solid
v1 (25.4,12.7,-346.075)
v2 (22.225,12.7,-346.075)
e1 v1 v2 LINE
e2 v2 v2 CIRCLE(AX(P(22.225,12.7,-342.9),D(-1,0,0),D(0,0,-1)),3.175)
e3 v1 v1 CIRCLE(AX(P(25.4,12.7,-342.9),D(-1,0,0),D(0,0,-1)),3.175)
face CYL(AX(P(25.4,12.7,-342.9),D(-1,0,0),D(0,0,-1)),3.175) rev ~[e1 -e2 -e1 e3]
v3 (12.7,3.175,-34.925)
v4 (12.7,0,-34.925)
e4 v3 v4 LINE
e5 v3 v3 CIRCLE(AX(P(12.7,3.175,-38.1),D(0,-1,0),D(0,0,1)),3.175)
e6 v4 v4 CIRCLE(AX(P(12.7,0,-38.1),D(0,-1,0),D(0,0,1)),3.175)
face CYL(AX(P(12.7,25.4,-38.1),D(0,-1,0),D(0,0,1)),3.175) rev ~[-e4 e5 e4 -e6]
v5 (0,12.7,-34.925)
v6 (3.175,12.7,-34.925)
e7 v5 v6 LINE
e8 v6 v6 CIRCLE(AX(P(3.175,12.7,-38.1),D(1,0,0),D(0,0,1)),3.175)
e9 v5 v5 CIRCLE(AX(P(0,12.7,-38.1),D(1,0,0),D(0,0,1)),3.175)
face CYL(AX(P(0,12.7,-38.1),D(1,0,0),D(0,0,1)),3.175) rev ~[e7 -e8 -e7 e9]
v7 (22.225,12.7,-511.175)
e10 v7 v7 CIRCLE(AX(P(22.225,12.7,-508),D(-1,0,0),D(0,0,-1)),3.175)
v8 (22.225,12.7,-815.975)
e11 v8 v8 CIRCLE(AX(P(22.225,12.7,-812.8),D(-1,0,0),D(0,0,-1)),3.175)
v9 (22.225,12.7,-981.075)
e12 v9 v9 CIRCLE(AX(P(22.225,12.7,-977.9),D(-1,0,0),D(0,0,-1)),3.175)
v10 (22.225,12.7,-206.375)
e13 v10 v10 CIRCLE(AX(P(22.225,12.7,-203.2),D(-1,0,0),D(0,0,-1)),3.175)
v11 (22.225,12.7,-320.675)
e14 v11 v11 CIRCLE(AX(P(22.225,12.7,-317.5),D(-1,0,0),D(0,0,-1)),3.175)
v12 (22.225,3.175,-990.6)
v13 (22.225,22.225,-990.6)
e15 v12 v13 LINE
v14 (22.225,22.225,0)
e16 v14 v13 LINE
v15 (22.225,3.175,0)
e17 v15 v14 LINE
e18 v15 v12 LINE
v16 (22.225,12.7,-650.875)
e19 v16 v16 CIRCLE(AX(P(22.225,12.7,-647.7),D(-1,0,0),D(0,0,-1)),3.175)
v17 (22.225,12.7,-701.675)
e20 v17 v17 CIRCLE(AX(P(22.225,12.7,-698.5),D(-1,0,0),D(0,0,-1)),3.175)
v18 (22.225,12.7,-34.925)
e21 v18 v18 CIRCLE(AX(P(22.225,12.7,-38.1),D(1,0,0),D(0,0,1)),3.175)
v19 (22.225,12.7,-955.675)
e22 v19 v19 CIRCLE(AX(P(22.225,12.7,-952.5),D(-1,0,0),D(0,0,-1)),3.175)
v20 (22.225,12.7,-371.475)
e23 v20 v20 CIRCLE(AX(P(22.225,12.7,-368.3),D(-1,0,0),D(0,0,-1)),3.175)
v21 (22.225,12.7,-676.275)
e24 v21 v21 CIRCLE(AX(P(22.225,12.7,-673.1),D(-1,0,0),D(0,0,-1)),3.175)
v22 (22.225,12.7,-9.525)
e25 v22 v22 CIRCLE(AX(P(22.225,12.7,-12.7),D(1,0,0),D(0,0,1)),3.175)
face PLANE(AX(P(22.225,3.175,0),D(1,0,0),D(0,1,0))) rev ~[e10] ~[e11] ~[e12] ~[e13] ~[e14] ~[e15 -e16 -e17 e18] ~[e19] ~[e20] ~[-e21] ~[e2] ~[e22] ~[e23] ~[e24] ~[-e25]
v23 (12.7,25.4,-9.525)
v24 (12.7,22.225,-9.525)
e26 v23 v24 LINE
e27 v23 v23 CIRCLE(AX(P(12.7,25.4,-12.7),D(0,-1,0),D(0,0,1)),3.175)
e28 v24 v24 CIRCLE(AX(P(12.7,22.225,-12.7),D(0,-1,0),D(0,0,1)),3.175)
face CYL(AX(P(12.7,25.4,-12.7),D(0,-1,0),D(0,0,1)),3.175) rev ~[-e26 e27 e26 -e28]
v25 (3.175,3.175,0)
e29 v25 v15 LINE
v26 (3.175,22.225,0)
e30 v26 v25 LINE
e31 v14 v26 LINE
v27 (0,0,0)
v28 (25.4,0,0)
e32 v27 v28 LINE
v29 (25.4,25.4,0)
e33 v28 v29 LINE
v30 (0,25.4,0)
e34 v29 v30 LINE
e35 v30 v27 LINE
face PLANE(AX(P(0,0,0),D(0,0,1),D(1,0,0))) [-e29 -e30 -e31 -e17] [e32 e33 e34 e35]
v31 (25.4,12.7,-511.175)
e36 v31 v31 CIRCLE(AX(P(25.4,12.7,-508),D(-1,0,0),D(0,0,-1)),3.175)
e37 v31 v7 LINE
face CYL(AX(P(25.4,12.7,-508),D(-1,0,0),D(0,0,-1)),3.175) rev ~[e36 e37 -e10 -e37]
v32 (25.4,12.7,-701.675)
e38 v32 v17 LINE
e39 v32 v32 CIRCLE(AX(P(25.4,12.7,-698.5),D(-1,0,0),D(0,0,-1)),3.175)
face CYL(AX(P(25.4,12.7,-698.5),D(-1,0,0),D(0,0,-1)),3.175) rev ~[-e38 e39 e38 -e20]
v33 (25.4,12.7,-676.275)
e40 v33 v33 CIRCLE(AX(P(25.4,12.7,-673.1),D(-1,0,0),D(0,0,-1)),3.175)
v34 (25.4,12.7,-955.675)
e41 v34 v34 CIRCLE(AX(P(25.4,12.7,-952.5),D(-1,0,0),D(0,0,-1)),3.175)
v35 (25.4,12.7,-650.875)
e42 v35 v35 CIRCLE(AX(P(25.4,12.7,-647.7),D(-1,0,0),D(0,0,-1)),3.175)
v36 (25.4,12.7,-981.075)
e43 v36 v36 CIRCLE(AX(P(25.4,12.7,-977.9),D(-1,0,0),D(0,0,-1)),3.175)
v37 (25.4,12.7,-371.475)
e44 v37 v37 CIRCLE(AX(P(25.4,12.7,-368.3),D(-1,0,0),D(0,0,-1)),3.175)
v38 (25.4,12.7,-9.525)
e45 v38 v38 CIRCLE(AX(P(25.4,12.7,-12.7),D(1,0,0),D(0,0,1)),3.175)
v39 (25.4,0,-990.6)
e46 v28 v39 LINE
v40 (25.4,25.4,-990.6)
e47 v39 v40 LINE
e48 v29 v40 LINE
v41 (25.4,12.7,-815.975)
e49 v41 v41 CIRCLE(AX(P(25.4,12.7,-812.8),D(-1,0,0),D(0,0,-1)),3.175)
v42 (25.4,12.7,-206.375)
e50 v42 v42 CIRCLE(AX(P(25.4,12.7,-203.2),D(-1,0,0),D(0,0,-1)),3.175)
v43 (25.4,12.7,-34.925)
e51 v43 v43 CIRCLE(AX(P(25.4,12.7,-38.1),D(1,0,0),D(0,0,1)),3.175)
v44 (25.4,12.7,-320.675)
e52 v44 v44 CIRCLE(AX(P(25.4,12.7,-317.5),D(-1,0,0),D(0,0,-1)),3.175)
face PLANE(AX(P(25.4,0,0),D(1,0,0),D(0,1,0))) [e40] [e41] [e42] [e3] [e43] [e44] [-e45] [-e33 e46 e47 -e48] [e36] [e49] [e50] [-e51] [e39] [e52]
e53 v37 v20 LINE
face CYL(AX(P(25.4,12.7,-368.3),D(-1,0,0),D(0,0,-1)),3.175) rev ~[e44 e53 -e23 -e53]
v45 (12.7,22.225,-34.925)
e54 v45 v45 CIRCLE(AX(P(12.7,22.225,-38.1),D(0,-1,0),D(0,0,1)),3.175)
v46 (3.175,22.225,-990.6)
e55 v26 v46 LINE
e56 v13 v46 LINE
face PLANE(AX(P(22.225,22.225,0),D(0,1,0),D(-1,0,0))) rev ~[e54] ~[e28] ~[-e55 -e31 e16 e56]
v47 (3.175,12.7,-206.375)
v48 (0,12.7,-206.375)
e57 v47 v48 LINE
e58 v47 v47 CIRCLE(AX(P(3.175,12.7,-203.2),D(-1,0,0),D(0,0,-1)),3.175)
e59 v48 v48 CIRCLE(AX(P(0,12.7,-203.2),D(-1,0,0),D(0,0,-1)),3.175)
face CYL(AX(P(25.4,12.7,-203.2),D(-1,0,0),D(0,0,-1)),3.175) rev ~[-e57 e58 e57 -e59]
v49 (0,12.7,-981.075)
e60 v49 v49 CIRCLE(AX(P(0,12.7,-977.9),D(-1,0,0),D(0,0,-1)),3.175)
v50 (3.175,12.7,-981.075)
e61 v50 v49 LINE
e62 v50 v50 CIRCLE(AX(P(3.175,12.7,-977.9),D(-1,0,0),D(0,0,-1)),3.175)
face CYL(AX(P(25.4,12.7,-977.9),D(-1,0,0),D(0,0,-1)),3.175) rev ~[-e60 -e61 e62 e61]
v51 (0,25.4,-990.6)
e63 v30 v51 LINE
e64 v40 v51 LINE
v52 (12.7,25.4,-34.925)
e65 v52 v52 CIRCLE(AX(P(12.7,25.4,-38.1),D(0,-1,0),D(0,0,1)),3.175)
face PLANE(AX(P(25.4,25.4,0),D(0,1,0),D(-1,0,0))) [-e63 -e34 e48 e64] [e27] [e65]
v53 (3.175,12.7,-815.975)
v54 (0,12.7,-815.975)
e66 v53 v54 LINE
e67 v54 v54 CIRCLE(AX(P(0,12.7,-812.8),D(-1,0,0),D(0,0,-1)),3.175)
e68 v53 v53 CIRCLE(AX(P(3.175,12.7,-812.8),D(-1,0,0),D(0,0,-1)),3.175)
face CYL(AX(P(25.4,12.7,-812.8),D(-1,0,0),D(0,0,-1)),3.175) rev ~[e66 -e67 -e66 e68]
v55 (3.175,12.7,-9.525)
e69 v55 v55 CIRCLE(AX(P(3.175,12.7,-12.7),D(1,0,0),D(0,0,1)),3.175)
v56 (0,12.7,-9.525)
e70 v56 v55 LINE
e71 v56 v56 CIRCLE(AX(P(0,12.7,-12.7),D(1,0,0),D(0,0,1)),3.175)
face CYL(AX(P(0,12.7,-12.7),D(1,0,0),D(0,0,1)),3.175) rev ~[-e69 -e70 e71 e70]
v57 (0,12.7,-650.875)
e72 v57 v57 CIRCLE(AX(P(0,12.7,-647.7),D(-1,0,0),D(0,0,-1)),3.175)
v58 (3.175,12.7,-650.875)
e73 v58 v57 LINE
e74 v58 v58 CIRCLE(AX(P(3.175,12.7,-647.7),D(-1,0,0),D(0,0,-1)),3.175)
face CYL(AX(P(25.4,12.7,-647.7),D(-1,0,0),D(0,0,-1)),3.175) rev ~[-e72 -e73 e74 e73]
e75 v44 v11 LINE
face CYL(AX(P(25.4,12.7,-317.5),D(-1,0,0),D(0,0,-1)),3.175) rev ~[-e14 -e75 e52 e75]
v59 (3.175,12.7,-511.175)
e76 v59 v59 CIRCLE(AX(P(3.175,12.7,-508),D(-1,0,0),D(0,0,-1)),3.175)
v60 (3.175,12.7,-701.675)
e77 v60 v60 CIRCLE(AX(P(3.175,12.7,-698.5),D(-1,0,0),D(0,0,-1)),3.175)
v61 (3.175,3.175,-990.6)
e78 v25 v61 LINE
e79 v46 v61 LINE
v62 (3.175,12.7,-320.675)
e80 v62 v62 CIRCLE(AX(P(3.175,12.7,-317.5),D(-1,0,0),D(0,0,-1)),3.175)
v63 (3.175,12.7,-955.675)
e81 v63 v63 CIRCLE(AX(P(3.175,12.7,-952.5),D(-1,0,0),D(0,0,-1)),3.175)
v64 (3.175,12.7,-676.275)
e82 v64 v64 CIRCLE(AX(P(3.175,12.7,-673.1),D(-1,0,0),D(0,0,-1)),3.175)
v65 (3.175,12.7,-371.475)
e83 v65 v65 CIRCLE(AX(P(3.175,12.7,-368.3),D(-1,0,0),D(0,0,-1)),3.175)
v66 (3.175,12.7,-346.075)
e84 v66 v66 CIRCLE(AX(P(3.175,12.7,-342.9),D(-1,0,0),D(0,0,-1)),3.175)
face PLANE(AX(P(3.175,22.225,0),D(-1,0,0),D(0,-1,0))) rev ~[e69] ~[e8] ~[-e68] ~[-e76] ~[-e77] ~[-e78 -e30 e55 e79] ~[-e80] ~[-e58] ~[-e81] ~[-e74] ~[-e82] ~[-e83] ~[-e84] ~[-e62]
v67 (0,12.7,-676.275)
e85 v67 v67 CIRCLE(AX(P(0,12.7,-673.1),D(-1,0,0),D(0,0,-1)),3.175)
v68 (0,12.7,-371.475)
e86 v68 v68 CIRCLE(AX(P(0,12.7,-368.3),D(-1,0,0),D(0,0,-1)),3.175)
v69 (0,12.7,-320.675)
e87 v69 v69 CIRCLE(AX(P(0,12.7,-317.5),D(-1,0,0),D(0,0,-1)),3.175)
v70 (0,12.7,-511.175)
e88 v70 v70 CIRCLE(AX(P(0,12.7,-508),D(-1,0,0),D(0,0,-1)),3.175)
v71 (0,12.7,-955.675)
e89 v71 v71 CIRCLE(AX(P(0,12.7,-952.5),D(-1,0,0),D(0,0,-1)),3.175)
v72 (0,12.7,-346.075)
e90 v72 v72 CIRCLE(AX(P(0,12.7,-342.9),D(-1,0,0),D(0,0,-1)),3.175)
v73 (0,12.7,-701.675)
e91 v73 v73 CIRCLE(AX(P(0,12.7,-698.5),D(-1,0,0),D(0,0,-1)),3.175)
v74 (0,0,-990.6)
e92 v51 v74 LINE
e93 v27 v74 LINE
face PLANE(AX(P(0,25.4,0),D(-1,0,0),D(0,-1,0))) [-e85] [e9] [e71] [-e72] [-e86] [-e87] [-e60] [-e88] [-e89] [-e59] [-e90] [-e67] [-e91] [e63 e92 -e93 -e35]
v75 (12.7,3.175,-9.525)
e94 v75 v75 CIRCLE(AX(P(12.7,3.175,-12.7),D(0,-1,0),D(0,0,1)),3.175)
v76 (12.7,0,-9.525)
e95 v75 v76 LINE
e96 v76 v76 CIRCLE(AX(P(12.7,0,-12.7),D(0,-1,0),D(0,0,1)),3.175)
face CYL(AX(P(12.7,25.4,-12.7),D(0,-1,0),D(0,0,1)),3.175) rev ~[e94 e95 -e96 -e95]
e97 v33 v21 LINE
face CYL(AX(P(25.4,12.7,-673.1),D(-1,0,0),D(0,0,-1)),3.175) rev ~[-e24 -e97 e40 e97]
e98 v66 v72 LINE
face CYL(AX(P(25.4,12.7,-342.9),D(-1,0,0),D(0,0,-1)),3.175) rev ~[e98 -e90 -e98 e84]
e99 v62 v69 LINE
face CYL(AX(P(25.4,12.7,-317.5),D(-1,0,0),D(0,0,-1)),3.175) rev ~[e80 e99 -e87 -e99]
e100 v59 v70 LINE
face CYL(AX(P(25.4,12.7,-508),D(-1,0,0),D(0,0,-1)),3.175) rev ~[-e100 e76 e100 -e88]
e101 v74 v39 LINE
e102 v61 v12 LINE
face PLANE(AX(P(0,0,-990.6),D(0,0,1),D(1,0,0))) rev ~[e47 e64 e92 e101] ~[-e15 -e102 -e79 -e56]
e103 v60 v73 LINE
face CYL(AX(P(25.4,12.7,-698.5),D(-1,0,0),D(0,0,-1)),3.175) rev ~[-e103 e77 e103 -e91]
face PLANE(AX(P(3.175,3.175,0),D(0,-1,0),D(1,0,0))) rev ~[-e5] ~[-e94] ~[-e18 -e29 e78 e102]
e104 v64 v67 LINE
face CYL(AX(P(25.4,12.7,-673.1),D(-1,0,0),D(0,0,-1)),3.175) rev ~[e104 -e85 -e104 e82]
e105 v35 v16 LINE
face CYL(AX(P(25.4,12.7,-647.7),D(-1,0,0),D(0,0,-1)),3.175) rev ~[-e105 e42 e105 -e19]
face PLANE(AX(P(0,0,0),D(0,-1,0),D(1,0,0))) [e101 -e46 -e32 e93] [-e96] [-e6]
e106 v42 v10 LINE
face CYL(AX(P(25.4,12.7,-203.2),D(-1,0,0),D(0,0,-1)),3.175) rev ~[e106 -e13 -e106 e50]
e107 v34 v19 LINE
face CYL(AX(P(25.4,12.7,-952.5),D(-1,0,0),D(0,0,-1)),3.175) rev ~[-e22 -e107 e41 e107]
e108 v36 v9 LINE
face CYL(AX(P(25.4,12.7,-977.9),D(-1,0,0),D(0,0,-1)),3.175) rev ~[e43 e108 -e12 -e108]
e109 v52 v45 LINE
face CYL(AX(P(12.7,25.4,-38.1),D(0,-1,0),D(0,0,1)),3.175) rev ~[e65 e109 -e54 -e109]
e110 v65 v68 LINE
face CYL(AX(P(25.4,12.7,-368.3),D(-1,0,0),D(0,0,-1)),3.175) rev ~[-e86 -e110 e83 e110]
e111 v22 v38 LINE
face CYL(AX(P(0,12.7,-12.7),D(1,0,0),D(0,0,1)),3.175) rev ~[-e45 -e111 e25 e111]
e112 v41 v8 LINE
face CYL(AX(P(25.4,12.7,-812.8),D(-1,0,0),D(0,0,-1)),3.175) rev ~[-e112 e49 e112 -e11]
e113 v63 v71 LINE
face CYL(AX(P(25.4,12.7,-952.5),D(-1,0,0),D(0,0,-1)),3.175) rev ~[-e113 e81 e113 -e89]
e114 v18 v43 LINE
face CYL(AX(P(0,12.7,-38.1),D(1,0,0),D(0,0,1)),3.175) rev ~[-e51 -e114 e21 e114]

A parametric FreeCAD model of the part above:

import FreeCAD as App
import Part
import Sketcher
Q = App.Units.Quantity

doc = App.newDocument("Part")
body = doc.addObject("PartDesign::Body", "Body")

# Sketch on XY plane
sketch1 = body.newObject("Sketcher::SketchObject", "Sketch")
sketch1.AttachmentSupport = (doc.getObject("XY_Plane"), [""])
sketch1.MapMode = "FlatFace"
sketch1.addGeometry([
    Part.LineSegment(App.Vector(0, 25, 0), App.Vector(0, 0, 0)),  # 0
    Part.LineSegment(App.Vector(0, 0, 0), App.Vector(25, 0, 0)),  # 1
    Part.LineSegment(App.Vector(25, 0, 0), App.Vector(25, 25, 0)),  # 2
    Part.LineSegment(App.Vector(25, 25, 0), App.Vector(0, 25, 0)),  # 3
    Part.LineSegment(App.Vector(22, 3, 0), App.Vector(3, 3, 0)),  # 4
    Part.LineSegment(App.Vector(3, 3, 0), App.Vector(3, 22, 0)),  # 5
    Part.LineSegment(App.Vector(3, 22, 0), App.Vector(22, 22, 0)),  # 6
    Part.LineSegment(App.Vector(22, 22, 0), App.Vector(22, 3, 0)),  # 7
], False)
sketch1.addConstraint([
    Sketcher.Constraint("Coincident", 0, 2, 1, 1),
    Sketcher.Constraint("Coincident", 1, 2, 2, 1),
    Sketcher.Constraint("Coincident", 2, 2, 3, 1),
    Sketcher.Constraint("Coincident", 3, 2, 0, 1),
    Sketcher.Constraint("Coincident", 4, 2, 5, 1),
    Sketcher.Constraint("Coincident", 5, 2, 6, 1),
    Sketcher.Constraint("Coincident", 6, 2, 7, 1),
    Sketcher.Constraint("Coincident", 7, 2, 4, 1),
    Sketcher.Constraint("Vertical", 0),
    Sketcher.Constraint("Horizontal", 1),
    Sketcher.Constraint("Vertical", 2),
    Sketcher.Constraint("Horizontal", 3),
    Sketcher.Constraint("Horizontal", 4),
    Sketcher.Constraint("Vertical", 5),
    Sketcher.Constraint("Horizontal", 6),
    Sketcher.Constraint("Vertical", 7),
    Sketcher.Constraint("Coincident", 0, 2, -1, 1),
    Sketcher.Constraint("Equal", 3, 0),
    Sketcher.Constraint("Equal", 6, 5),
    Sketcher.Constraint("DistanceX", 1, 1, 1, 2, Q("1 in")),
    Sketcher.Constraint("DistanceX", -1, 1, 4, 2, Q("0.125 in")),
    Sketcher.Constraint("DistanceY", -1, 1, 4, 2, Q("0.125 in")),
    Sketcher.Constraint("DistanceY", 5, 2, 3, 2, Q("0.125 in")),
])
pad1 = body.newObject("PartDesign::Pad", "Pad")
pad1.Profile = sketch1
pad1.Length = Q("39 in")
pad1.Reversed = True

# Sketch on XZ plane
sketch2 = body.newObject("Sketcher::SketchObject", "Sketch001")
sketch2.AttachmentSupport = (doc.getObject("XZ_Plane"), [""])
sketch2.MapMode = "FlatFace"
sketch2.AttachmentOffset = App.Placement(App.Vector(0, 0, -1 * 25.4), App.Rotation())
sketch2.addGeometry([
    Part.Circle(App.Vector(12.7, -12.7, 0), App.Vector(0, 0, 1), 3.2),
    Part.Circle(App.Vector(12.7, -38.1, 0), App.Vector(0, 0, 1), 3.2),
], False)
sketch2.addConstraint([
    Sketcher.Constraint("Equal", 0, 1),
    Sketcher.Constraint("Vertical", 0, 3, 1, 3),
    Sketcher.Constraint("Diameter", 0, Q("0.25 in")),
    Sketcher.Constraint("DistanceY", 1, 3, 0, 3, Q("1 in")),
    Sketcher.Constraint("DistanceX", -1, 1, 0, 3, Q("0.5 in")),
    Sketcher.Constraint("DistanceY", 0, 3, -1, 1, Q("0.5 in")),
])
doc.recompute()
hole = body.newObject("PartDesign::Hole", "Hole")
hole.Profile = sketch2
hole.ThreadType = "None"
hole.Diameter = Q("0.25 in")
hole.DepthType = "Dimension"
hole.Depth = Q("1 in")
hole.DrillPoint = "Angled"
hole.DrillPointAngle = 118
hole.Reversed = True

# Sketch on YZ plane
sketch3 = body.newObject("Sketcher::SketchObject", "Sketch002")
sketch3.AttachmentSupport = (doc.getObject("YZ_Plane"), [""])
sketch3.MapMode = "FlatFace"
sketch3.addGeometry([
    Part.Circle(App.Vector(12.7, -12.7, 0), App.Vector(0, 0, 1), 3.2),
    Part.Circle(App.Vector(12.7, -38.1, 0), App.Vector(0, 0, 1), 3.2),
], False)
sketch3.addConstraint([
    Sketcher.Constraint("Equal", 0, 1),
    Sketcher.Constraint("Vertical", 0, 3, 1, 3),
    Sketcher.Constraint("Diameter", 0, Q("0.25 in")),
    Sketcher.Constraint("DistanceY", 1, 3, 0, 3, Q("1 in")),
    Sketcher.Constraint("DistanceX", -1, 1, 0, 3, Q("0.5 in")),
    Sketcher.Constraint("DistanceY", 0, 3, -1, 1, Q("0.5 in")),
])
doc.recompute()
hole2 = body.newObject("PartDesign::Hole", "Hole001")
hole2.Profile = sketch3
hole2.ThreadType = "None"
hole2.Diameter = Q("0.25 in")
hole2.DepthType = "Dimension"
hole2.Depth = Q("1 in")
hole2.DrillPoint = "Angled"
hole2.DrillPointAngle = 118
hole2.Reversed = True

# Sketch on YZ plane
sketch4 = body.newObject("Sketcher::SketchObject", "Sketch003")
sketch4.AttachmentSupport = (doc.getObject("YZ_Plane"), [""])
sketch4.MapMode = "FlatFace"
sketch4.AttachmentOffset = App.Placement(App.Vector(0, 0, 1 * 25.4), App.Rotation())
sketch4.addGeometry([
    Part.Circle(App.Vector(12.7, -317.5, 0), App.Vector(0, 0, 1), 3.2),  # 0
    Part.Circle(App.Vector(12.7, -342.9, 0), App.Vector(0, 0, 1), 3.2),  # 1
    Part.Circle(App.Vector(12.7, -368.3, 0), App.Vector(0, 0, 1), 3.2),  # 2
    Part.Circle(App.Vector(12.7, -647.7, 0), App.Vector(0, 0, 1), 3.2),  # 3
    Part.Circle(App.Vector(12.7, -673.1, 0), App.Vector(0, 0, 1), 3.2),  # 4
    Part.Circle(App.Vector(12.7, -698.5, 0), App.Vector(0, 0, 1), 3.2),  # 5
    Part.Circle(App.Vector(12.7, -203.2, 0), App.Vector(0, 0, 1), 3.2),  # 6
    Part.Circle(App.Vector(12.7, -508, 0), App.Vector(0, 0, 1), 3.2),  # 7
    Part.Circle(App.Vector(12.7, -812.8, 0), App.Vector(0, 0, 1), 3.2),  # 8
    Part.Circle(App.Vector(12.7, -952.5, 0), App.Vector(0, 0, 1), 3.2),  # 9
    Part.Circle(App.Vector(12.7, -977.9, 0), App.Vector(0, 0, 1), 3.2),  # 10
], False)
sketch4.addConstraint([
    Sketcher.Constraint("Equal", 0, 1),
    Sketcher.Constraint("Equal", 1, 2),
    Sketcher.Constraint("Equal", 2, 3),
    Sketcher.Constraint("Equal", 3, 4),
    Sketcher.Constraint("Equal", 4, 5),
    Sketcher.Constraint("Equal", 5, 6),
    Sketcher.Constraint("Equal", 6, 7),
    Sketcher.Constraint("Equal", 7, 8),
    Sketcher.Constraint("Equal", 8, 9),
    Sketcher.Constraint("Equal", 9, 10),
    Sketcher.Constraint("Vertical", 0, 3, 1, 3),
    Sketcher.Constraint("Vertical", 1, 3, 2, 3),
    Sketcher.Constraint("Vertical", 2, 3, 3, 3),
    Sketcher.Constraint("Vertical", 3, 3, 4, 3),
    Sketcher.Constraint("Vertical", 4, 3, 5, 3),
    Sketcher.Constraint("Vertical", 5, 3, 6, 3),
    Sketcher.Constraint("Vertical", 6, 3, 7, 3),
    Sketcher.Constraint("Vertical", 7, 3, 8, 3),
    Sketcher.Constraint("Vertical", 8, 3, 9, 3),
    Sketcher.Constraint("Vertical", 9, 3, 10, 3),
    Sketcher.Constraint("Diameter", 0, Q("0.25 in")),
    Sketcher.Constraint("DistanceY", 6, 3, -1, 1, Q("8 in")),
    Sketcher.Constraint("DistanceY", 7, 3, -1, 1, Q("20 in")),
    Sketcher.Constraint("DistanceY", 8, 3, -1, 1, Q("32 in")),
    Sketcher.Constraint("DistanceY", 1, 3, 0, 3, Q("1 in")),
    Sketcher.Constraint("DistanceY", 2, 3, 1, 3, Q("1 in")),
    Sketcher.Constraint("DistanceY", 3, 3, 2, 3, Q("11 in")),
    Sketcher.Constraint("DistanceY", 4, 3, 3, 3, Q("1 in")),
    Sketcher.Constraint("DistanceY", 5, 3, 4, 3, Q("1 in")),
    Sketcher.Constraint("DistanceY", 9, 3, 5, 3, Q("10 in")),
    Sketcher.Constraint("DistanceY", 10, 3, 9, 3, Q("1 in")),
    Sketcher.Constraint("DistanceX", -1, 1, 0, 3, Q("0.5 in")),
    Sketcher.Constraint("DistanceY", 0, 3, -1, 1, Q("12.5 in")),
])
doc.recompute()
hole3 = body.newObject("PartDesign::Hole", "Hole002")
hole3.Profile = sketch4
hole3.ThreadType = "None"
hole3.Diameter = Q("0.25 in")
hole3.DepthType = "Dimension"
hole3.Depth = Q("1 in")
hole3.DrillPoint = "Angled"
hole3.DrillPointAngle = 118

doc.recompute()
